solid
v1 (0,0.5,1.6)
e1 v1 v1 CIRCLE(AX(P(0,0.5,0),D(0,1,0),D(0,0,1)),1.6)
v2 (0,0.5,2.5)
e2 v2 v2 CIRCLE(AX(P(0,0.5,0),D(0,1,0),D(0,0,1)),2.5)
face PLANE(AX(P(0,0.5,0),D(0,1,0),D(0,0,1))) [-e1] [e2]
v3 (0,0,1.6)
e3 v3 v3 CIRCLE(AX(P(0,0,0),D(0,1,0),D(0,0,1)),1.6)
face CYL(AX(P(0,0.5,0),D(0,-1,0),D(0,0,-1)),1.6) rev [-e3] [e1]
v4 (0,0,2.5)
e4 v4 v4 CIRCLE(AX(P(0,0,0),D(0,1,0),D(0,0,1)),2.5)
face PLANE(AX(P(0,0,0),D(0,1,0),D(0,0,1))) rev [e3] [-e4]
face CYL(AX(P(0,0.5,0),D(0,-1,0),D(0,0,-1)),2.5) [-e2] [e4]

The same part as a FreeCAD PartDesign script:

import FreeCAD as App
import Part
import Sketcher
Q = App.Units.Quantity

doc = App.newDocument("Part")
body = doc.addObject("PartDesign::Body", "Body")

# Sketch on XZ plane
sketch1 = body.newObject("Sketcher::SketchObject", "Sketch")
sketch1.AttachmentSupport = (doc.getObject("XZ_Plane"), [""])
sketch1.MapMode = "FlatFace"
sketch1.addGeometry([
    Part.Circle(App.Vector(0, 0, 0), App.Vector(0, 0, 1), 2.5),
    Part.Circle(App.Vector(0, 0, 0), App.Vector(0, 0, 1), 1.6),
], False)
sketch1.addConstraint([
    Sketcher.Constraint("Coincident", 0, 3, -1, 1),
    Sketcher.Constraint("Coincident", 1, 3, -1, 1),
    Sketcher.Constraint("Diameter", 0, Q("5 mm")),
    Sketcher.Constraint("Diameter", 1, Q("3.2 mm")),
])
pad1 = body.newObject("PartDesign::Pad", "Pad")
pad1.Profile = sketch1
pad1.Length = 0.5
pad1.Reversed = True

doc.recompute()
